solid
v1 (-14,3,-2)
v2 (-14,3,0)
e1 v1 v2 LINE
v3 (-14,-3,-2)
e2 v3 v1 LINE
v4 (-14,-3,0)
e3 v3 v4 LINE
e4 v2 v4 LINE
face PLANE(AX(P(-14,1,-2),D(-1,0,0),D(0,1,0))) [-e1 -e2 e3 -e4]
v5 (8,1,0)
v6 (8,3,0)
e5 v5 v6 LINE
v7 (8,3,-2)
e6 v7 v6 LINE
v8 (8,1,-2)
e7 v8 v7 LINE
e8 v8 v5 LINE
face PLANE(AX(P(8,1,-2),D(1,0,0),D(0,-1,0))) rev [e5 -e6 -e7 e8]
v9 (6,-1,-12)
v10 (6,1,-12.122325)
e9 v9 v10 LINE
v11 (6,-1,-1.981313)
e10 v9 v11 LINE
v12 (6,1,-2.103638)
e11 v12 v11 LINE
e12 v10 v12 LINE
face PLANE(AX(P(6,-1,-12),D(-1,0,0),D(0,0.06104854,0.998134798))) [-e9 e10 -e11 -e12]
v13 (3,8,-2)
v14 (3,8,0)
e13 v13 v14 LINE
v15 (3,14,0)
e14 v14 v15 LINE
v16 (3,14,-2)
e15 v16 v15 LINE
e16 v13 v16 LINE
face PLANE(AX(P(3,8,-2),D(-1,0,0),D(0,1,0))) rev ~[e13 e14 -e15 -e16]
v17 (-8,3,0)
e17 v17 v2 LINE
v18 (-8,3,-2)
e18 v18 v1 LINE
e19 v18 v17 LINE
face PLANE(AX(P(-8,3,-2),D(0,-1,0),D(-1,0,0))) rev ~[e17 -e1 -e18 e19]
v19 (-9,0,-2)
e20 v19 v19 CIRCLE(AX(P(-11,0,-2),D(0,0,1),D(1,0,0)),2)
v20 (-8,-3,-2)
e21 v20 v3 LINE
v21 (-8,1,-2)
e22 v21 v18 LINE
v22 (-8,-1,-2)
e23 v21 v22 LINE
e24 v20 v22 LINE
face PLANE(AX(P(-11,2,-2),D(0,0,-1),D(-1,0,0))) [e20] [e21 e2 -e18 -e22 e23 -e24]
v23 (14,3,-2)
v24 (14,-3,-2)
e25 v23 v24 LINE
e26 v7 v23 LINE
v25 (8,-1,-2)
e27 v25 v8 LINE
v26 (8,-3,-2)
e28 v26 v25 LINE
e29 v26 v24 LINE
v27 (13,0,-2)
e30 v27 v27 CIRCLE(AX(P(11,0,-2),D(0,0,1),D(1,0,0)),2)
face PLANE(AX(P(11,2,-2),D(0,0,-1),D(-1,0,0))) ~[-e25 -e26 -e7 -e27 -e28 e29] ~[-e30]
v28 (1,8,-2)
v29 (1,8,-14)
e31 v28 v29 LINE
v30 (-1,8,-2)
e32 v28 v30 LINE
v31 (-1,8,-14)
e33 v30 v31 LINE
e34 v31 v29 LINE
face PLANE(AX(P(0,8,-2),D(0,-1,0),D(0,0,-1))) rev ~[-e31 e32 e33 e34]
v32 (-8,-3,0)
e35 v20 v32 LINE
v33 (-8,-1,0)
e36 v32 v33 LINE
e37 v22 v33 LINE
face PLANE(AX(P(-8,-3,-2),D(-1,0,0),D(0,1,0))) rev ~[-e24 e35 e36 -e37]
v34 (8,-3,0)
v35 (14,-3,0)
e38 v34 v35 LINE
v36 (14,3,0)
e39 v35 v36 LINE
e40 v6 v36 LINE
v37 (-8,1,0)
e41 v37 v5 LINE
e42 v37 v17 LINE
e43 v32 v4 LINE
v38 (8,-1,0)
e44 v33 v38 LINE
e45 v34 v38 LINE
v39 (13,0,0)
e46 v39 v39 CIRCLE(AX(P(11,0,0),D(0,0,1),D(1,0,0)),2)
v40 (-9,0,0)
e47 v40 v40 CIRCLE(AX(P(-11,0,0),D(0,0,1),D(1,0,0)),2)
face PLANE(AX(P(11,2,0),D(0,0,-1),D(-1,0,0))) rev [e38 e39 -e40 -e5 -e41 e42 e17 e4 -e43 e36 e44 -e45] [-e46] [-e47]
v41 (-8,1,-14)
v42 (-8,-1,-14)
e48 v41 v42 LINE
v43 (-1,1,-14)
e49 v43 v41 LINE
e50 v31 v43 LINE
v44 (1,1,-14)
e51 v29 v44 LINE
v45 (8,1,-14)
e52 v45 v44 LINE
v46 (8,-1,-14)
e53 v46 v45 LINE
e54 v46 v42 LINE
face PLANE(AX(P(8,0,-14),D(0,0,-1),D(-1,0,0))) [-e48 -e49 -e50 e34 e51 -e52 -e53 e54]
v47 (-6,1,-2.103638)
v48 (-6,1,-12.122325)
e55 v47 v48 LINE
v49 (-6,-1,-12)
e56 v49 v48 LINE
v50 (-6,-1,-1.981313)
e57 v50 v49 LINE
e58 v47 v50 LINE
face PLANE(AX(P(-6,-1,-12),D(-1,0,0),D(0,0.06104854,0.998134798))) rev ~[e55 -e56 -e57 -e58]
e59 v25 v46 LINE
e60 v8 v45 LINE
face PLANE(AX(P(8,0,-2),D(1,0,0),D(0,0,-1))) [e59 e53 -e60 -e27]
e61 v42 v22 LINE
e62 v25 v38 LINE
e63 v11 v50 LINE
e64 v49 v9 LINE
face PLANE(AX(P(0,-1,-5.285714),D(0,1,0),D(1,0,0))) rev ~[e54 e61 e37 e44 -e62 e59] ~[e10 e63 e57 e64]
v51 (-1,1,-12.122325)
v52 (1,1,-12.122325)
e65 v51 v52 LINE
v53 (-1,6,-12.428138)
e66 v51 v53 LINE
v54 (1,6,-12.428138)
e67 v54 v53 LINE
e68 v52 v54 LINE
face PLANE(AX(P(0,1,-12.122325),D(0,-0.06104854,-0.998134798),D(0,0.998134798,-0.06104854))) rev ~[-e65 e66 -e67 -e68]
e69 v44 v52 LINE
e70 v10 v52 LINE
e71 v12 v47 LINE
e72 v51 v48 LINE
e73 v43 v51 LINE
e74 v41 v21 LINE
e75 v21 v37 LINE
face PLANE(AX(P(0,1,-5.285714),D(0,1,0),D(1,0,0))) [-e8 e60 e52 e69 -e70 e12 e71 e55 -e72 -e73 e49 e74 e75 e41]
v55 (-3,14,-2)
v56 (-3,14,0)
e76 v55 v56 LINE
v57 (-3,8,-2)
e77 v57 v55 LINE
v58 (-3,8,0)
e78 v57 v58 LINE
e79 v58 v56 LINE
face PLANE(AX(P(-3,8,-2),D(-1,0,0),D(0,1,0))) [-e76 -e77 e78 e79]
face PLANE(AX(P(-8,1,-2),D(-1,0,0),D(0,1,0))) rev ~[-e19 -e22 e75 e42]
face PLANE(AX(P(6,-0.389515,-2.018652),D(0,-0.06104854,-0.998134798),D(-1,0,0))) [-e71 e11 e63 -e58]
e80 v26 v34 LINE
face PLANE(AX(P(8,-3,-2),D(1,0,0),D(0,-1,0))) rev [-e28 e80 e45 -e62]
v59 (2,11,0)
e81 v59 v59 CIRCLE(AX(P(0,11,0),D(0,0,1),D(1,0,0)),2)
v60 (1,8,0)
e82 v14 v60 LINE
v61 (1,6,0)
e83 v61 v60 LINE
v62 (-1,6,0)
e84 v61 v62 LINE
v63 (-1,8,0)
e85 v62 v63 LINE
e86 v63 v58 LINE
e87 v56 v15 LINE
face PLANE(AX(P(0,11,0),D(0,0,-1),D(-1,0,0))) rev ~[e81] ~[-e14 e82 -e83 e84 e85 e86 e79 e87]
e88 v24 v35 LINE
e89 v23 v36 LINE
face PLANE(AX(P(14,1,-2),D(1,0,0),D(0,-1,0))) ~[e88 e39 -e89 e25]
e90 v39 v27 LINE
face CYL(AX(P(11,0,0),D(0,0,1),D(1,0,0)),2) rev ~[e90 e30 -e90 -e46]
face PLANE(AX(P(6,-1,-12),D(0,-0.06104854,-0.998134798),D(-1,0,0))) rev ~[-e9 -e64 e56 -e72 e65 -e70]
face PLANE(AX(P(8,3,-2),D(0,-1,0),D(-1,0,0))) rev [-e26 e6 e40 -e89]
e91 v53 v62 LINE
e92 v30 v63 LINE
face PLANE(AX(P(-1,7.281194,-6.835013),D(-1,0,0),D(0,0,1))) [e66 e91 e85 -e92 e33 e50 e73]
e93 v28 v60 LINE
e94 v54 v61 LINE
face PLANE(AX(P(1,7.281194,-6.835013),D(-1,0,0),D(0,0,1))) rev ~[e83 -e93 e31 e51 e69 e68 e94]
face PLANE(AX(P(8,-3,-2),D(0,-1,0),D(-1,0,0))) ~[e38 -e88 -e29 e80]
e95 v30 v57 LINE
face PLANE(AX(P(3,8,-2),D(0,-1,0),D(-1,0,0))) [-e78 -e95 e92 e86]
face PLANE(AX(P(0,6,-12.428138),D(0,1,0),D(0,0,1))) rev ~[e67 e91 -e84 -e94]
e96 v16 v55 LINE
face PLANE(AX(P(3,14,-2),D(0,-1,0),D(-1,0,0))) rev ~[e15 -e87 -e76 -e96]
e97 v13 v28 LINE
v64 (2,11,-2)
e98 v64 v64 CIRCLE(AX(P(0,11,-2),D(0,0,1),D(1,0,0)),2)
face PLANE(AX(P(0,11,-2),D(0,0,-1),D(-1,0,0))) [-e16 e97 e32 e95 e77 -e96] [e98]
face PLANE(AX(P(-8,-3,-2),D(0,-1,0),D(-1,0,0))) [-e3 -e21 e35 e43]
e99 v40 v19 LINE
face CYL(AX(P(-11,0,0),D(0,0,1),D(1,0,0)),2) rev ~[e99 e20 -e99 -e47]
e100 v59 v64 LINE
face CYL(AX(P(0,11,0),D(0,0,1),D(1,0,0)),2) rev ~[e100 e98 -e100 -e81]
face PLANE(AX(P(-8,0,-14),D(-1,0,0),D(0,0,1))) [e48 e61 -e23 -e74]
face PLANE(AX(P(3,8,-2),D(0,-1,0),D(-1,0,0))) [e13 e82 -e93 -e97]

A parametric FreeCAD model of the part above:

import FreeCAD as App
import Part
import Sketcher
Q = App.Units.Quantity

doc = App.newDocument("Part")
params = doc.addObject("Spreadsheet::Sheet", "Params")
for row, (alias, value) in enumerate([
    ("sketch1_width", "28 mm"),
    ("sketch1_width2", "6 mm"),
    ("sketch1_width3", "12 mm"),
    ("sketch1_height", "2 mm"),
    ("sketch1_height2", "8 mm"),
    ("pad1_length", "2 mm"),
    ("sketch2_width", "6 mm"),
    ("sketch2_height", "2 mm"),
    ("pad2_length", "2 mm"),
    ("sketch3_width", "12 mm"),
    ("sketch3_height", "10 mm"),
    ("pocket1_length", "5 mm"),
    ("sketch4_width", "7 mm"),
    ("sketch4_width2", "6 mm"),
    ("sketch4_width3", "8 mm"),
    ("sketch4_height", "12 mm"),
    ("sketch4_height2", "2 mm"),
    ("pad3_length", "2 mm"),
    ("sketch5_width", "6 mm"),
    ("pad4_length", "2 mm"),
    ("sketch6_diameter", "4 mm"),
], start=1):
    params.set(f"A{row}", alias)
    params.set(f"B{row}", "=" + value)
    params.setAlias(f"B{row}", alias)

body = doc.addObject("PartDesign::Body", "Body")

sketch1 = doc.addObject("Sketcher::SketchObject", "Sketch")
body.addObject(sketch1)
sketch1.AttachmentSupport = (doc.XZ_Plane, [""])
sketch1.MapMode = "FlatFace"
sketch1.addGeometry([
    Part.LineSegment(App.Vector(-14, 0, 0), App.Vector(14, 0, 0)),
    Part.LineSegment(App.Vector(14, 0, 0), App.Vector(14, -2, 0)),
    Part.LineSegment(App.Vector(14, -2, 0), App.Vector(8, -2, 0)),
    Part.LineSegment(App.Vector(8, -2, 0), App.Vector(8, -14, 0)),
    Part.LineSegment(App.Vector(8, -14, 0), App.Vector(-8, -14, 0)),
    Part.LineSegment(App.Vector(-8, -14, 0), App.Vector(-8, -2, 0)),
    Part.LineSegment(App.Vector(-8, -2, 0), App.Vector(-14, -2, 0)),
    Part.LineSegment(App.Vector(-14, -2, 0), App.Vector(-14, 0, 0)),
    Part.LineSegment(App.Vector(6, -4, 0), App.Vector(-6, -4, 0)),
    Part.LineSegment(App.Vector(-6, -4, 0), App.Vector(-6, -12, 0)),
    Part.LineSegment(App.Vector(-6, -12, 0), App.Vector(6, -12, 0)),
    Part.LineSegment(App.Vector(6, -12, 0), App.Vector(6, -4, 0)),
], False)
sketch1.addConstraint([
    Sketcher.Constraint("Coincident", 0, 2, 1, 1),
    Sketcher.Constraint("Coincident", 1, 2, 2, 1),
    Sketcher.Constraint("Coincident", 2, 2, 3, 1),
    Sketcher.Constraint("Coincident", 3, 2, 4, 1),
    Sketcher.Constraint("Coincident", 4, 2, 5, 1),
    Sketcher.Constraint("Coincident", 5, 2, 6, 1),
    Sketcher.Constraint("Coincident", 6, 2, 7, 1),
    Sketcher.Constraint("Coincident", 7, 2, 0, 1),
    Sketcher.Constraint("Coincident", 8, 2, 9, 1),
    Sketcher.Constraint("Coincident", 9, 2, 10, 1),
    Sketcher.Constraint("Coincident", 10, 2, 11, 1),
    Sketcher.Constraint("Coincident", 11, 2, 8, 1),
    Sketcher.Constraint("Horizontal", 0),
    Sketcher.Constraint("Vertical", 1),
    Sketcher.Constraint("Horizontal", 2),
    Sketcher.Constraint("Vertical", 3),
    Sketcher.Constraint("Horizontal", 4),
    Sketcher.Constraint("Vertical", 5),
    Sketcher.Constraint("Horizontal", 6),
    Sketcher.Constraint("Vertical", 7),
    Sketcher.Constraint("Horizontal", 8),
    Sketcher.Constraint("Vertical", 9),
    Sketcher.Constraint("Horizontal", 10),
    Sketcher.Constraint("Vertical", 11),
    Sketcher.Constraint("Symmetric", 0, 2, 7, 2, -1, 1),
    Sketcher.Constraint("Symmetric", 2, 2, 5, 2, -2),
    Sketcher.Constraint("Equal", 10, 3),
    Sketcher.Constraint("DistanceX", 0, 1, 0, 2, Q("28 mm")),
    Sketcher.Constraint("DistanceX", 2, 2, 2, 1, Q("6 mm")),
    Sketcher.Constraint("DistanceX", 8, 2, 8, 1, Q("12 mm")),
    Sketcher.Constraint("DistanceY", 1, 2, 1, 1, Q("2 mm")),
    Sketcher.Constraint("DistanceY", 9, 2, 9, 1, Q("8 mm")),
    Sketcher.Constraint("DistanceX", 8, 2, -1, 1, Q("6 mm")),
    Sketcher.Constraint("DistanceY", 8, 2, -1, 1, Q("4 mm")),
])
sketch1.setExpression("Constraints[27]", "Params.sketch1_width")
sketch1.setExpression("Constraints[28]", "Params.sketch1_width2")
sketch1.setExpression("Constraints[29]", "Params.sketch1_width3")
sketch1.setExpression("Constraints[30]", "Params.sketch1_height")
sketch1.setExpression("Constraints[31]", "Params.sketch1_height2")
pad1 = doc.addObject("PartDesign::Pad", "Pad")
body.addObject(pad1)
pad1.Profile = sketch1
pad1.setExpression("Length", "Params.pad1_length")
pad1.Midplane = True

sketch2 = doc.addObject("Sketcher::SketchObject", "Sketch001")
body.addObject(sketch2)
sketch2.AttachmentSupport = (doc.XY_Plane, [""])
sketch2.MapMode = "FlatFace"
sketch2.AttachmentOffset = App.Placement(App.Vector(0, 0, -2), App.Rotation())
sketch2.addGeometry([
    Part.LineSegment(App.Vector(-8, 3, 0), App.Vector(-8, 1, 0)),
    Part.LineSegment(App.Vector(-8, 1, 0), App.Vector(-14, 1, 0)),
    Part.LineSegment(App.Vector(-14, 1, 0), App.Vector(-14, 3, 0)),
    Part.LineSegment(App.Vector(-14, 3, 0), App.Vector(-8, 3, 0)),
    Part.LineSegment(App.Vector(-8, -1, 0), App.Vector(-8, -3, 0)),
    Part.LineSegment(App.Vector(-8, -3, 0), App.Vector(-14, -3, 0)),
    Part.LineSegment(App.Vector(-14, -3, 0), App.Vector(-14, -1, 0)),
    Part.LineSegment(App.Vector(-14, -1, 0), App.Vector(-8, -1, 0)),
], False)
sketch2.addConstraint([
    Sketcher.Constraint("Coincident", 0, 2, 1, 1),
    Sketcher.Constraint("Coincident", 1, 2, 2, 1),
    Sketcher.Constraint("Coincident", 2, 2, 3, 1),
    Sketcher.Constraint("Coincident", 3, 2, 0, 1),
    Sketcher.Constraint("Coincident", 4, 2, 5, 1),
    Sketcher.Constraint("Coincident", 5, 2, 6, 1),
    Sketcher.Constraint("Coincident", 6, 2, 7, 1),
    Sketcher.Constraint("Coincident", 7, 2, 4, 1),
    Sketcher.Constraint("Vertical", 0),
    Sketcher.Constraint("Horizontal", 1),
    Sketcher.Constraint("Vertical", 2),
    Sketcher.Constraint("Horizontal", 3),
    Sketcher.Constraint("Vertical", 4),
    Sketcher.Constraint("Horizontal", 5),
    Sketcher.Constraint("Vertical", 6),
    Sketcher.Constraint("Horizontal", 7),
    Sketcher.Constraint("Symmetric", 3, 2, 4, 2, -1),
    Sketcher.Constraint("Symmetric", 1, 2, 6, 2, -1),
    Sketcher.Constraint("DistanceX", 1, 2, 1, 1, Q("6 mm")),
    Sketcher.Constraint("DistanceY", 0, 2, 0, 1, Q("2 mm")),
    Sketcher.Constraint("DistanceX", 0, 2, -1, 1, Q("8 mm")),
    Sketcher.Constraint("DistanceY", -1, 1, 0, 2, Q("1 mm")),
])
sketch2.setExpression("Constraints[18]", "Params.sketch2_width")
sketch2.setExpression("Constraints[19]", "Params.sketch2_height")
pad2 = doc.addObject("PartDesign::Pad", "Pad001")
body.addObject(pad2)
pad2.Profile = sketch2
pad2.setExpression("Length", "Params.pad2_length")
doc.recompute()

mirrored = doc.addObject("PartDesign::Mirrored", "Mirrored")
body.addObject(mirrored)
mirrored.Originals = [pad2]
mirrored.MirrorPlane = (doc.YZ_Plane, [""])
body.Tip = mirrored

sketch3 = doc.addObject("Sketcher::SketchObject", "Sketch002")
body.addObject(sketch3)
sketch3.Placement = App.Placement(App.Vector(0, -0.265057, 0.016212), App.Rotation(App.Vector(-1, 0, 0), App.Vector(0, 0.06104854, 0.998134798), App.Vector(0, 0.998134798, -0.06104854), "ZXY"))
sketch3.addGeometry([
    Part.LineSegment(App.Vector(-6, -2, 0), App.Vector(-6, -12, 0)),
    Part.LineSegment(App.Vector(-6, -12, 0), App.Vector(6, -12, 0)),
    Part.LineSegment(App.Vector(6, -12, 0), App.Vector(6, -2, 0)),
    Part.LineSegment(App.Vector(6, -2, 0), App.Vector(-6, -2, 0)),
], False)
sketch3.addConstraint([
    Sketcher.Constraint("Coincident", 0, 2, 1, 1),
    Sketcher.Constraint("Coincident", 1, 2, 2, 1),
    Sketcher.Constraint("Coincident", 2, 2, 3, 1),
    Sketcher.Constraint("Coincident", 3, 2, 0, 1),
    Sketcher.Constraint("Vertical", 0),
    Sketcher.Constraint("Horizontal", 1),
    Sketcher.Constraint("Vertical", 2),
    Sketcher.Constraint("Horizontal", 3),
    Sketcher.Constraint("DistanceX", 1, 1, 1, 2, Q("12 mm")),
    Sketcher.Constraint("DistanceY", 0, 2, 0, 1, Q("10 mm")),
    Sketcher.Constraint("DistanceX", 0, 2, -1, 1, Q("6 mm")),
    Sketcher.Constraint("DistanceY", 0, 2, -1, 1, Q("12.038666 mm")),
])
sketch3.setExpression("Constraints[8]", "Params.sketch3_width")
sketch3.setExpression("Constraints[9]", "Params.sketch3_height")
pocket1 = doc.addObject("PartDesign::Pocket", "Pocket")
body.addObject(pocket1)
pocket1.Profile = sketch3
pocket1.setExpression("Length", "Params.pocket1_length")
pocket1.Midplane = True

sketch4 = doc.addObject("Sketcher::SketchObject", "Sketch003")
body.addObject(sketch4)
sketch4.AttachmentSupport = (doc.YZ_Plane, [""])
sketch4.MapMode = "FlatFace"
sketch4.addGeometry([
    Part.LineSegment(App.Vector(6, -12.4, 0), App.Vector(1, -12.1, 0)),
    Part.LineSegment(App.Vector(1, -12.1, 0), App.Vector(1, -14, 0)),
    Part.LineSegment(App.Vector(1, -14, 0), App.Vector(8, -14, 0)),
    Part.LineSegment(App.Vector(8, -14, 0), App.Vector(8, -2, 0)),
    Part.LineSegment(App.Vector(8, -2, 0), App.Vector(14, -2, 0)),
    Part.LineSegment(App.Vector(14, -2, 0), App.Vector(14, 0, 0)),
    Part.LineSegment(App.Vector(14, 0, 0), App.Vector(6, 0, 0)),
    Part.LineSegment(App.Vector(6, 0, 0), App.Vector(6, -12.4, 0)),
], False)
sketch4.addConstraint([
    Sketcher.Constraint("Coincident", 0, 2, 1, 1),
    Sketcher.Constraint("Coincident", 1, 2, 2, 1),
    Sketcher.Constraint("Coincident", 2, 2, 3, 1),
    Sketcher.Constraint("Coincident", 3, 2, 4, 1),
    Sketcher.Constraint("Coincident", 4, 2, 5, 1),
    Sketcher.Constraint("Coincident", 5, 2, 6, 1),
    Sketcher.Constraint("Coincident", 6, 2, 7, 1),
    Sketcher.Constraint("Coincident", 7, 2, 0, 1),
    Sketcher.Constraint("Vertical", 1),
    Sketcher.Constraint("Horizontal", 2),
    Sketcher.Constraint("Vertical", 3),
    Sketcher.Constraint("Horizontal", 4),
    Sketcher.Constraint("Vertical", 5),
    Sketcher.Constraint("Horizontal", 6),
    Sketcher.Constraint("Vertical", 7),
    Sketcher.Constraint("PointOnObject", 5, 2, -1),
    Sketcher.Constraint("DistanceX", 2, 1, 2, 2, Q("7 mm")),
    Sketcher.Constraint("DistanceX", 4, 1, 4, 2, Q("6 mm")),
    Sketcher.Constraint("DistanceX", 6, 2, 6, 1, Q("8 mm")),
    Sketcher.Constraint("DistanceY", 3, 1, 3, 2, Q("12 mm")),
    Sketcher.Constraint("DistanceY", 5, 1, 5, 2, Q("2 mm")),
    Sketcher.Constraint("DistanceX", -1, 1, 0, 2, Q("1 mm")),
    Sketcher.Constraint("Angle", 0, Q("176.5 deg")),
    Sketcher.Constraint("DistanceY", 7, 2, 7, 1, Q("12.428138 mm")),
])
sketch4.setExpression("Constraints[16]", "Params.sketch4_width")
sketch4.setExpression("Constraints[17]", "Params.sketch4_width2")
sketch4.setExpression("Constraints[18]", "Params.sketch4_width3")
sketch4.setExpression("Constraints[19]", "Params.sketch4_height")
sketch4.setExpression("Constraints[20]", "Params.sketch4_height2")
pad3 = doc.addObject("PartDesign::Pad", "Pad002")
body.addObject(pad3)
pad3.Profile = sketch4
pad3.setExpression("Length", "Params.pad3_length")
pad3.Midplane = True

sketch5 = doc.addObject("Sketcher::SketchObject", "Sketch004")
body.addObject(sketch5)
sketch5.AttachmentSupport = (doc.XY_Plane, [""])
sketch5.MapMode = "FlatFace"
sketch5.AttachmentOffset = App.Placement(App.Vector(0, 0, -2), App.Rotation())
sketch5.addGeometry([
    Part.LineSegment(App.Vector(3, 14, 0), App.Vector(3, 8, 0)),
    Part.LineSegment(App.Vector(3, 8, 0), App.Vector(-3, 8, 0)),
    Part.LineSegment(App.Vector(-3, 8, 0), App.Vector(-3, 14, 0)),
    Part.LineSegment(App.Vector(-3, 14, 0), App.Vector(3, 14, 0)),
], False)
sketch5.addConstraint([
    Sketcher.Constraint("Coincident", 0, 2, 1, 1),
    Sketcher.Constraint("Coincident", 1, 2, 2, 1),
    Sketcher.Constraint("Coincident", 2, 2, 3, 1),
    Sketcher.Constraint("Coincident", 3, 2, 0, 1),
    Sketcher.Constraint("Vertical", 0),
    Sketcher.Constraint("Horizontal", 1),
    Sketcher.Constraint("Vertical", 2),
    Sketcher.Constraint("Horizontal", 3),
    Sketcher.Constraint("Equal", 3, 0),
    Sketcher.Constraint("DistanceX", 1, 2, 1, 1, Q("6 mm")),
    Sketcher.Constraint("DistanceX", -1, 1, 0, 2, Q("3 mm")),
    Sketcher.Constraint("DistanceY", -1, 1, 0, 2, Q("8 mm")),
])
sketch5.setExpression("Constraints[9]", "Params.sketch5_width")
pad4 = doc.addObject("PartDesign::Pad", "Pad003")
body.addObject(pad4)
pad4.Profile = sketch5
pad4.setExpression("Length", "Params.pad4_length")

sketch6 = doc.addObject("Sketcher::SketchObject", "Sketch005")
body.addObject(sketch6)
sketch6.AttachmentSupport = (doc.XY_Plane, [""])
sketch6.MapMode = "FlatFace"
sketch6.addGeometry([
    Part.Circle(App.Vector(-11, 0, 0), App.Vector(0, 0, 1), 2),
    Part.Circle(App.Vector(11, 0, 0), App.Vector(0, 0, 1), 2),
    Part.Circle(App.Vector(0, 11, 0), App.Vector(0, 0, 1), 2),
], False)
sketch6.addConstraint([
    Sketcher.Constraint("Equal", 0, 1),
    Sketcher.Constraint("Equal", 1, 2),
    Sketcher.Constraint("Symmetric", 0, 3, 1, 3, -1, 1),
    Sketcher.Constraint("PointOnObject", 0, 3, -1),
    Sketcher.Constraint("PointOnObject", 2, 3, -2),
    Sketcher.Constraint("Diameter", 0, Q("4 mm")),
    Sketcher.Constraint("DistanceX", 0, 3, -1, 1, Q("11 mm")),
    Sketcher.Constraint("DistanceY", -1, 1, 2, 3, Q("11 mm")),
])
sketch6.setExpression("Constraints[5]", "Params.sketch6_diameter")
pocket2 = doc.addObject("PartDesign::Pocket", "Pocket001")
body.addObject(pocket2)
pocket2.Profile = sketch6
pocket2.Type = "ThroughAll"

doc.recompute()
